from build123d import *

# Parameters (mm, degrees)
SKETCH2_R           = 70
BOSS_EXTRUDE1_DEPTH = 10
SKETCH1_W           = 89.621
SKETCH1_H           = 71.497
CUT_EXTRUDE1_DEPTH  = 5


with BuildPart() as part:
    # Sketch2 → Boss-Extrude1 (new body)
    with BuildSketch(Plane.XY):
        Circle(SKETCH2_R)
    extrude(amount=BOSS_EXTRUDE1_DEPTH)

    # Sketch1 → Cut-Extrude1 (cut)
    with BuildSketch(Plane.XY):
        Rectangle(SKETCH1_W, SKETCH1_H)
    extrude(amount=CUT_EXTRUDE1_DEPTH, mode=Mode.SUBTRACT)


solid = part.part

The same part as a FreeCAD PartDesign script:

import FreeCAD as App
import Part
import Sketcher

V = App.Vector

doc = App.newDocument("Part")
body = doc.addObject("PartDesign::Body", "Body")

sketch1 = body.newObject("Sketcher::SketchObject", "Sketch")
sketch1.AttachmentSupport = (doc.getObject("XY_Plane"), [""])
sketch1.MapMode = "FlatFace"
sketch1.addGeometry(Part.Circle(V(0, 0, 0), V(0, 0, 1), 70), False)
sketch1.addConstraint([
    Sketcher.Constraint("Coincident", 0, 3, -1, 1),
    Sketcher.Constraint("Diameter", 0, 140.0),
])
pad1 = body.newObject("PartDesign::Pad", "Pad")
pad1.Profile = sketch1
pad1.Length = 10

sketch2 = body.newObject("Sketcher::SketchObject", "Sketch001")
sketch2.AttachmentSupport = (doc.getObject("XY_Plane"), [""])
sketch2.MapMode = "FlatFace"
sketch2.addGeometry([
    Part.LineSegment(V(-45, 36, 0), V(-45, -36, 0)),
    Part.LineSegment(V(-45, -36, 0), V(45, -36, 0)),
    Part.LineSegment(V(45, -36, 0), V(45, 36, 0)),
    Part.LineSegment(V(45, 36, 0), V(-45, 36, 0)),
], False)
sketch2.addConstraint([
    Sketcher.Constraint("Coincident", 0, 2, 1, 1),
    Sketcher.Constraint("Coincident", 1, 2, 2, 1),
    Sketcher.Constraint("Coincident", 2, 2, 3, 1),
    Sketcher.Constraint("Coincident", 3, 2, 0, 1),
    Sketcher.Constraint("Vertical", 0),
    Sketcher.Constraint("Horizontal", 1),
    Sketcher.Constraint("Vertical", 2),
    Sketcher.Constraint("Horizontal", 3),
    Sketcher.Constraint("Symmetric", 0, 2, 2, 2, -1, 1),
    Sketcher.Constraint("DistanceX", 1, 1, 1, 2, 89.621),
    Sketcher.Constraint("DistanceY", 0, 2, 0, 1, 71.497),
])
pocket1 = body.newObject("PartDesign::Pocket", "Pocket")
pocket1.Profile = sketch2
pocket1.Length = 5
pocket1.Reversed = True

doc.recompute()
